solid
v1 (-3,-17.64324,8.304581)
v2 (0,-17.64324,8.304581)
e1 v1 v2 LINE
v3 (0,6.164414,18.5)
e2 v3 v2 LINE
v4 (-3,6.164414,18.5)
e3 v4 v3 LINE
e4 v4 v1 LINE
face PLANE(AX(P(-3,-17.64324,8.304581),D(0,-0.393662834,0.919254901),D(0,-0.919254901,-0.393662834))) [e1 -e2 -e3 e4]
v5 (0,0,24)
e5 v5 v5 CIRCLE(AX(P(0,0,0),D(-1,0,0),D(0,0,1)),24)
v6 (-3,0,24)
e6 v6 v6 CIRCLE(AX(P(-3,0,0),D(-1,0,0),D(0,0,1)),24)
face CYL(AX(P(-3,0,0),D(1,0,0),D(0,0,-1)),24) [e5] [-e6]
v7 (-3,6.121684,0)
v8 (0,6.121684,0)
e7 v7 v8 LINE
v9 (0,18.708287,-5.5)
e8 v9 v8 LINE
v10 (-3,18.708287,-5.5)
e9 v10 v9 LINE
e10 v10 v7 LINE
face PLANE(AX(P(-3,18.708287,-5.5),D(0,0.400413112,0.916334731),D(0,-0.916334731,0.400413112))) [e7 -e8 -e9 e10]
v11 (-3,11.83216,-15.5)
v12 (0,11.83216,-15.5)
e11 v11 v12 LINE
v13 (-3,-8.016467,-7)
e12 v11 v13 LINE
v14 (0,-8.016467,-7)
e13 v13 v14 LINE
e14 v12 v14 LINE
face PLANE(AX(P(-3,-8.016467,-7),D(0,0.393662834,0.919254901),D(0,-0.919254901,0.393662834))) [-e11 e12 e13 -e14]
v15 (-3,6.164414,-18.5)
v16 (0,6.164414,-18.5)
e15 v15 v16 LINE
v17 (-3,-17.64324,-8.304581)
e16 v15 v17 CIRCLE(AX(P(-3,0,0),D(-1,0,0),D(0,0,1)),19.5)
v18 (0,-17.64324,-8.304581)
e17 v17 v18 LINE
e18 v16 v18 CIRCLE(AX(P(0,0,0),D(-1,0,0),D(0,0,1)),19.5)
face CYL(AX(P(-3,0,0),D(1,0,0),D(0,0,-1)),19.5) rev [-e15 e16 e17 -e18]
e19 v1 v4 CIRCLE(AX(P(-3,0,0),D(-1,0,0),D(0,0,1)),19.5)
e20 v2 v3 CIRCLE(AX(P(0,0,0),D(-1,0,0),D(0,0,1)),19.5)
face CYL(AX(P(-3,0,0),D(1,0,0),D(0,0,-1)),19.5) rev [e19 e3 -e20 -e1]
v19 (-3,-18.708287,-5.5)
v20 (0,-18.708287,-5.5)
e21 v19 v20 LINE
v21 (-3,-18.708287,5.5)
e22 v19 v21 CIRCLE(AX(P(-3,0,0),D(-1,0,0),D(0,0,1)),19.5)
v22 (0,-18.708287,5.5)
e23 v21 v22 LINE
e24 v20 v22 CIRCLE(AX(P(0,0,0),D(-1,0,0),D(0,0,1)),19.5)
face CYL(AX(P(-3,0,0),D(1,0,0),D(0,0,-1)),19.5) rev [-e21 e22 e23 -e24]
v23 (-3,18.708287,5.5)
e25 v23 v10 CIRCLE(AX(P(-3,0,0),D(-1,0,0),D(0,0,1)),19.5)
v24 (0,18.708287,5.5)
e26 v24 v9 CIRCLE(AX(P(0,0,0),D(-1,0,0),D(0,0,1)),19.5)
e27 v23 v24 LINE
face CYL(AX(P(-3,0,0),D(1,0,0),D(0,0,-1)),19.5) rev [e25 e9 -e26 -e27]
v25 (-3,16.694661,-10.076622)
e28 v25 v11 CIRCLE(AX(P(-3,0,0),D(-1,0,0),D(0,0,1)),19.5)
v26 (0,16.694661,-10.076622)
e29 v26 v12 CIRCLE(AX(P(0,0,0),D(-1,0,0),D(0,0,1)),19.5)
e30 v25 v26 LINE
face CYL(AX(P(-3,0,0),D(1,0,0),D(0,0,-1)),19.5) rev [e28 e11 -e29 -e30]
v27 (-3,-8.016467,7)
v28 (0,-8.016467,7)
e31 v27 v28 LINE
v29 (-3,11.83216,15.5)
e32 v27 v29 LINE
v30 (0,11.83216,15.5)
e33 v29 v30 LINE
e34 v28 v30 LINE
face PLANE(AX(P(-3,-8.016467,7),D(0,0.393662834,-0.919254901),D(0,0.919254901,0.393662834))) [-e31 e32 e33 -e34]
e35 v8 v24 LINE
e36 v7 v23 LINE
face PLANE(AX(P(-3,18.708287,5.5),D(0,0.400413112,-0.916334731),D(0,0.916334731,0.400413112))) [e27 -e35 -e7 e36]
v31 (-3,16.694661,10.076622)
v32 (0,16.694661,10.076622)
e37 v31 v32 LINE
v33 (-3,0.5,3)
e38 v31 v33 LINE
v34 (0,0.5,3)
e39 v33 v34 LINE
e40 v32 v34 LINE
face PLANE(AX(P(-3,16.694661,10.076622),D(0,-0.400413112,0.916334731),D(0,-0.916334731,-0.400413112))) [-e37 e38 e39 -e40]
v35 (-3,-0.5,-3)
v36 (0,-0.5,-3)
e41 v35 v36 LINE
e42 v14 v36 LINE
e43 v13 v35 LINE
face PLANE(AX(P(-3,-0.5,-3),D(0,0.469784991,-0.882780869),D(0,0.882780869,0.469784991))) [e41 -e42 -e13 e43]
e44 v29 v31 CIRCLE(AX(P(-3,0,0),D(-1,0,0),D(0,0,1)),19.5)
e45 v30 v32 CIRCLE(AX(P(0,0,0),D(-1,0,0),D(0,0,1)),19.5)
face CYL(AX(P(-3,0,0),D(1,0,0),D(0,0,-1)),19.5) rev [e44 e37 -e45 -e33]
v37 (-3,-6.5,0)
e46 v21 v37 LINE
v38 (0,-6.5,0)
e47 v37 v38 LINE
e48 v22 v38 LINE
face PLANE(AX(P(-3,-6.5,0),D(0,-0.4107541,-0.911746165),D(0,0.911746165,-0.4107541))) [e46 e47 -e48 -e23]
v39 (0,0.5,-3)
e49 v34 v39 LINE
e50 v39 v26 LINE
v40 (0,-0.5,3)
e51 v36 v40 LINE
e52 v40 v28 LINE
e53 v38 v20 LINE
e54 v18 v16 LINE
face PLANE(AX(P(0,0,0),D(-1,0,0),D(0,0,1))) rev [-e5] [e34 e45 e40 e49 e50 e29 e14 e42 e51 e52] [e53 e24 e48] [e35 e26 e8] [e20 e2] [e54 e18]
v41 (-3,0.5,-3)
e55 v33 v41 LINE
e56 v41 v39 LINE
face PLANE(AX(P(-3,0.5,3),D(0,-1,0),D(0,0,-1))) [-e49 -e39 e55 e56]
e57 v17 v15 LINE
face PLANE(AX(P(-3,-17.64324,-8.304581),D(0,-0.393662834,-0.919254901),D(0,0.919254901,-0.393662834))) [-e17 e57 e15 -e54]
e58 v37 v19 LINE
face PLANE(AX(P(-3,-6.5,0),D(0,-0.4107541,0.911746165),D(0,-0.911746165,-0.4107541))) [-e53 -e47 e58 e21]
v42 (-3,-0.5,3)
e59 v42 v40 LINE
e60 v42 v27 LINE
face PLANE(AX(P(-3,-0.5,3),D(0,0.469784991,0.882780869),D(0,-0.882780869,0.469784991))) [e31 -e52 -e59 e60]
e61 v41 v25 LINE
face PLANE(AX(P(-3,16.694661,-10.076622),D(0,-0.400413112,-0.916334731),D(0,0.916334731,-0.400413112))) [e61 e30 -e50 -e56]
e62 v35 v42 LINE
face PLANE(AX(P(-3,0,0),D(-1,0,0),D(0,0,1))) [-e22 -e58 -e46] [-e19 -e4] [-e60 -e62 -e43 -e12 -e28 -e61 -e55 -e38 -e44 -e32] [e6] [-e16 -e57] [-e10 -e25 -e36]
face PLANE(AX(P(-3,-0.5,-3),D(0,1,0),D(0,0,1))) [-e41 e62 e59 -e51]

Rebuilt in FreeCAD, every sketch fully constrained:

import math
import FreeCAD as App
import Part
import Sketcher
Q = App.Units.Quantity

doc = App.newDocument("Part")
body = doc.addObject("PartDesign::Body", "Body")

# Sketch on YZ plane
sketch1 = doc.addObject("Sketcher::SketchObject", "Sketch")
body.addObject(sketch1)
sketch1.AttachmentSupport = (doc.YZ_Plane, [""])
sketch1.MapMode = "FlatFace"
sketch1.addGeometry([
    Part.Circle(App.Vector(0, 0, 0), App.Vector(0, 0, 1), 24),  # 0
    Part.LineSegment(App.Vector(-18.708287, -5.5, 0), App.Vector(-6.5, 0, 0)),  # 1
    Part.LineSegment(App.Vector(-6.5, 0, 0), App.Vector(-18.708287, 5.5, 0)),  # 2
    Part.ArcOfCircle(Part.Circle(App.Vector(0, 0, 0), App.Vector(0, 0, 1), 19.5), math.radians(163.61733), math.radians(196.38267)),  # 3
    Part.LineSegment(App.Vector(6.164414, -18.5, 0), App.Vector(-17.64324, -8.304581, 0)),  # 4
    Part.ArcOfCircle(Part.Circle(App.Vector(0, 0, 0), App.Vector(0, 0, 1), 19.5), math.radians(-154.793879), math.radians(-71.57133)),  # 5
    Part.ArcOfCircle(Part.Circle(App.Vector(0, 0, 0), App.Vector(0, 0, 1), 19.5), math.radians(71.57133), math.radians(154.793879)),  # 6
    Part.LineSegment(App.Vector(-17.64324, 8.304581, 0), App.Vector(6.164414, 18.5, 0)),  # 7
    Part.LineSegment(App.Vector(0.5, 3, 0), App.Vector(16.694661, 10.076622, 0)),  # 8
    Part.ArcOfCircle(Part.Circle(App.Vector(0, 0, 0), App.Vector(0, 0, 1), 19.5), math.radians(31.114489), math.radians(52.643148)),  # 9
    Part.LineSegment(App.Vector(11.83216, 15.5, 0), App.Vector(-8.016467, 7, 0)),  # 10
    Part.LineSegment(App.Vector(-8.016467, 7, 0), App.Vector(-0.5, 3, 0)),  # 11
    Part.LineSegment(App.Vector(-0.5, 3, 0), App.Vector(-0.5, -3, 0)),  # 12
    Part.LineSegment(App.Vector(-0.5, -3, 0), App.Vector(-8.016467, -7, 0)),  # 13
    Part.LineSegment(App.Vector(-8.016467, -7, 0), App.Vector(11.83216, -15.5, 0)),  # 14
    Part.ArcOfCircle(Part.Circle(App.Vector(0, 0, 0), App.Vector(0, 0, 1), 19.5), math.radians(-52.643148), math.radians(-31.114489)),  # 15
    Part.LineSegment(App.Vector(16.694661, -10.076622, 0), App.Vector(0.5, -3, 0)),  # 16
    Part.LineSegment(App.Vector(0.5, -3, 0), App.Vector(0.5, 3, 0)),  # 17
    Part.ArcOfCircle(Part.Circle(App.Vector(0, 0, 0), App.Vector(0, 0, 1), 19.5), math.radians(-16.38267), math.radians(16.38267)),  # 18
    Part.LineSegment(App.Vector(18.708287, 5.5, 0), App.Vector(6.121684, 0, 0)),  # 19
    Part.LineSegment(App.Vector(6.121684, 0, 0), App.Vector(18.708287, -5.5, 0)),  # 20
], False)
sketch1.addConstraint([
    Sketcher.Constraint("Coincident", 1, 2, 2, 1),
    Sketcher.Constraint("Coincident", 2, 2, 3, 1),
    Sketcher.Constraint("Coincident", 3, 2, 1, 1),
    Sketcher.Constraint("Coincident", 4, 1, 5, 2),
    Sketcher.Constraint("Coincident", 5, 1, 4, 2),
    Sketcher.Constraint("Coincident", 6, 1, 7, 2),
    Sketcher.Constraint("Coincident", 7, 1, 6, 2),
    Sketcher.Constraint("Coincident", 8, 2, 9, 1),
    Sketcher.Constraint("Coincident", 9, 2, 10, 1),
    Sketcher.Constraint("Coincident", 10, 2, 11, 1),
    Sketcher.Constraint("Coincident", 11, 2, 12, 1),
    Sketcher.Constraint("Coincident", 12, 2, 13, 1),
    Sketcher.Constraint("Coincident", 13, 2, 14, 1),
    Sketcher.Constraint("Coincident", 14, 2, 15, 1),
    Sketcher.Constraint("Coincident", 15, 2, 16, 1),
    Sketcher.Constraint("Coincident", 16, 2, 17, 1),
    Sketcher.Constraint("Coincident", 17, 2, 8, 1),
    Sketcher.Constraint("Coincident", 18, 2, 19, 1),
    Sketcher.Constraint("Coincident", 19, 2, 20, 1),
    Sketcher.Constraint("Coincident", 20, 2, 18, 1),
    Sketcher.Constraint("Vertical", 12),
    Sketcher.Constraint("Vertical", 17),
    Sketcher.Constraint("Coincident", 0, 3, -1, 1),
    Sketcher.Constraint("Coincident", 3, 3, -1, 1),
    Sketcher.Constraint("Coincident", 5, 3, -1, 1),
    Sketcher.Constraint("Coincident", 6, 3, -1, 1),
    Sketcher.Constraint("Coincident", 9, 3, -1, 1),
    Sketcher.Constraint("Coincident", 15, 3, -1, 1),
    Sketcher.Constraint("Coincident", 18, 3, -1, 1),
    Sketcher.Constraint("Equal", 3, 5),
    Sketcher.Constraint("Equal", 5, 6),
    Sketcher.Constraint("Equal", 6, 9),
    Sketcher.Constraint("Equal", 9, 15),
    Sketcher.Constraint("Equal", 15, 18),
    Sketcher.Constraint("Symmetric", 11, 2, 16, 2, -1, 1),
    Sketcher.Constraint("Symmetric", 10, 2, 13, 2, -1),
    Sketcher.Constraint("PointOnObject", 1, 2, -1),
    Sketcher.Constraint("PointOnObject", 19, 2, -1),
    Sketcher.Constraint("Parallel", 7, 10),
    Sketcher.Constraint("Parallel", 4, 14),
    Sketcher.Constraint("Parallel", 8, 19),
    Sketcher.Constraint("Parallel", 16, 20),
    Sketcher.Constraint("Horizontal", 12, 2, 16, 2),
    Sketcher.Constraint("Horizontal", 11, 2, 17, 2),
    Sketcher.Constraint("Horizontal", 2, 2, 18, 2),
    Sketcher.Constraint("Horizontal", 3, 2, 20, 2),
    Sketcher.Constraint("Vertical", 2, 2, 3, 2),
    Sketcher.Constraint("Vertical", 4, 1, 6, 1),
    Sketcher.Constraint("Vertical", 5, 1, 7, 1),
    Sketcher.Constraint("Diameter", 0, Q("48 mm")),
    Sketcher.Constraint("Radius", 3, Q("19.5 mm")),
    Sketcher.Constraint("DistanceY", 12, 2, 12, 1, Q("6 mm")),
    Sketcher.Constraint("DistanceY", -1, 1, 10, 2, Q("7 mm")),
    Sketcher.Constraint("DistanceY", 3, 2, 2, 2, Q("11 mm")),
    Sketcher.Constraint("DistanceY", 9, 2, 6, 1, Q("3 mm")),
    Sketcher.Constraint("DistanceX", 12, 2, 16, 2, Q("1 mm")),
    Sketcher.Constraint("DistanceY", 18, 2, 9, 2, Q("10 mm")),
    Sketcher.Constraint("DistanceX", 1, 2, -1, 1, Q("6.5 mm")),
    Sketcher.Constraint("DistanceX", 9, 2, 8, 2, Q("4.862501 mm")),
    Sketcher.Constraint("Distance", 4, Q("25.89886 mm")),
])
pad1 = doc.addObject("PartDesign::Pad", "Pad")
body.addObject(pad1)
pad1.Profile = sketch1
pad1.Length = 3
pad1.Reversed = True

doc.recompute()
